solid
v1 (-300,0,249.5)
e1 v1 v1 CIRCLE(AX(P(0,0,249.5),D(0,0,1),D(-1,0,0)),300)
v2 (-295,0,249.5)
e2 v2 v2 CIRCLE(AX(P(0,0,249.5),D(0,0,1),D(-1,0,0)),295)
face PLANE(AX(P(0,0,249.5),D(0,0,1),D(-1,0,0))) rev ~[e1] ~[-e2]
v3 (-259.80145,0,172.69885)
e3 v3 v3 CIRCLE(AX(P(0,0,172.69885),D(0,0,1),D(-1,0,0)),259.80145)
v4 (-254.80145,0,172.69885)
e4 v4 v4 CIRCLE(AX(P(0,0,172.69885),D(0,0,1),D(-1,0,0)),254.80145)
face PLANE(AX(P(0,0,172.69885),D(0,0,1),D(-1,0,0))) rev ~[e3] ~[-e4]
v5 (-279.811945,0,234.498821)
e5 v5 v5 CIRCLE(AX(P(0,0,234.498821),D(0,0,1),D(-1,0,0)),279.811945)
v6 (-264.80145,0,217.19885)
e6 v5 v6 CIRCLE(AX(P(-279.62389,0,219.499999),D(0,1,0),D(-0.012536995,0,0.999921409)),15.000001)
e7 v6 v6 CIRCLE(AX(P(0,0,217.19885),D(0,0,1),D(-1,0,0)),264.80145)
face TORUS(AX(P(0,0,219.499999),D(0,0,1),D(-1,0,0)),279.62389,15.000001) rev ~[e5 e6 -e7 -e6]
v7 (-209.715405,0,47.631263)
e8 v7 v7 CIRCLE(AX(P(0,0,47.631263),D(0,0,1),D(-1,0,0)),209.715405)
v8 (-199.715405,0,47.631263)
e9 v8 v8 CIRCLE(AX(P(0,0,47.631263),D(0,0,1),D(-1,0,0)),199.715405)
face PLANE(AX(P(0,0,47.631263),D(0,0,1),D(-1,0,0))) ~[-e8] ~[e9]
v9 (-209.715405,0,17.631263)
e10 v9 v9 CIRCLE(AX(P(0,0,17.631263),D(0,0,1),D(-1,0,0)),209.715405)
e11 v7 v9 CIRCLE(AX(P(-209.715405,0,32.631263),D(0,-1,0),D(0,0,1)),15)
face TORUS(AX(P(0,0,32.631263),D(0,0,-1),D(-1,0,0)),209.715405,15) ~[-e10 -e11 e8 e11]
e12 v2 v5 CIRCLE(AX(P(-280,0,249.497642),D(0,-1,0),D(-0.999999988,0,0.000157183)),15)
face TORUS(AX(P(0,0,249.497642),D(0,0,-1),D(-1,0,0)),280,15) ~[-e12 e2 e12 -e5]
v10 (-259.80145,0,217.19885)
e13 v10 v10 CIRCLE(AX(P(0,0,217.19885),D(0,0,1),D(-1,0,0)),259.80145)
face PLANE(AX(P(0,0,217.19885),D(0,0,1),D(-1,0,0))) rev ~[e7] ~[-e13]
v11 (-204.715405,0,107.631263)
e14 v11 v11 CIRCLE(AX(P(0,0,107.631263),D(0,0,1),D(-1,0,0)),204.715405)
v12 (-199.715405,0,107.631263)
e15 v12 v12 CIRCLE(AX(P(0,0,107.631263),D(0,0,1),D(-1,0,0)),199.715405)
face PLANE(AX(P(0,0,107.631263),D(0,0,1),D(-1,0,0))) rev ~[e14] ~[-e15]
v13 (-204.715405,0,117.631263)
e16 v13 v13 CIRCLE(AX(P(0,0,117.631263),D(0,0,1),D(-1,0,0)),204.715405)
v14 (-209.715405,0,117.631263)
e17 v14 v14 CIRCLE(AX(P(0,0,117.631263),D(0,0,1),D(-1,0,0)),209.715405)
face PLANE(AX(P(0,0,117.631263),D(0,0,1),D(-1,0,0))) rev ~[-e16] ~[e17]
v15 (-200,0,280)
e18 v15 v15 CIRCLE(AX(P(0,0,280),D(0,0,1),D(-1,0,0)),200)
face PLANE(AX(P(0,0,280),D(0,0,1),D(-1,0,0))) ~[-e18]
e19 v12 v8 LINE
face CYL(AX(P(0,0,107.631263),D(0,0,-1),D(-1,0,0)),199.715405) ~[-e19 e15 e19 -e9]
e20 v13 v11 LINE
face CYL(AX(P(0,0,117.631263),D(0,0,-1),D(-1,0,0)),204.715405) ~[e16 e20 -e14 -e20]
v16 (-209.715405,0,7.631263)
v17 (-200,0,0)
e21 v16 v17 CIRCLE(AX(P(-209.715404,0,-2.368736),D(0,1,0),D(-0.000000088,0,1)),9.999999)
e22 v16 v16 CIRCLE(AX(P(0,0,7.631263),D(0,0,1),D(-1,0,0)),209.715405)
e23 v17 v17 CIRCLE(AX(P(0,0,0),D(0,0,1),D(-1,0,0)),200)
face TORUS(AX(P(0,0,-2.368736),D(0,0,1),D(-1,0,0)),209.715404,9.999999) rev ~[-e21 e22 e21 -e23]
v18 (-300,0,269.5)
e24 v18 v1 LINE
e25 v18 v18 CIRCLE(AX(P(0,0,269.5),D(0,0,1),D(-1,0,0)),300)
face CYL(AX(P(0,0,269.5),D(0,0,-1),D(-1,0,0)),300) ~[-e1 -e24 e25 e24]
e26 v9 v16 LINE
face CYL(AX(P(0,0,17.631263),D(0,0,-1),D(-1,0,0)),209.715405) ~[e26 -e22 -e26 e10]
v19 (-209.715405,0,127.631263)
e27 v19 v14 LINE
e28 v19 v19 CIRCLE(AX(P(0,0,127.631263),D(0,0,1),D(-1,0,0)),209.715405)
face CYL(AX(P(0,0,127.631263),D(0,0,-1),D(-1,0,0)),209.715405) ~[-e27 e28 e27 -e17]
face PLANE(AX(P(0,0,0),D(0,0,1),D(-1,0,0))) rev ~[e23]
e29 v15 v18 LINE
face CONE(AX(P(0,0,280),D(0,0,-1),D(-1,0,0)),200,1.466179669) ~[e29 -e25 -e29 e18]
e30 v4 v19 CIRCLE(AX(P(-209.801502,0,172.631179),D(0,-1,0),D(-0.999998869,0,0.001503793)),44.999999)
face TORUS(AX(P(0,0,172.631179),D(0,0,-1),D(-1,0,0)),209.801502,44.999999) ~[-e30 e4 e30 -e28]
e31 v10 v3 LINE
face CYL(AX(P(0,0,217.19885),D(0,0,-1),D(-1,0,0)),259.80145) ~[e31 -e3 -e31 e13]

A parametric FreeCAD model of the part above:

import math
import FreeCAD as App
import Part
import Sketcher

V = App.Vector
Q = App.Units.Quantity

doc = App.newDocument("Part")
body = doc.addObject("PartDesign::Body", "Body")

# Sketch on XZ plane
sketch1 = doc.addObject("Sketcher::SketchObject", "Sketch")
body.addObject(sketch1)
sketch1.AttachmentSupport = (doc.XZ_Plane, [""])
sketch1.MapMode = "FlatFace"
sketch1.addGeometry([
    Part.LineSegment(V(-200, 0, 0), V(0, 0, 0)),  # 0
    Part.LineSegment(V(0, 0, 0), V(0, 280, 0)),  # 1
    Part.LineSegment(V(0, 280, 0), V(-200, 280, 0)),  # 2
    Part.LineSegment(V(-200, 280, 0), V(-300, 269.5, 0)),  # 3
    Part.LineSegment(V(-300, 269.5, 0), V(-300, 249.5, 0)),  # 4
    Part.LineSegment(V(-300, 249.5, 0), V(-295, 249.5, 0)),  # 5
    Part.ArcOfCircle(Part.Circle(V(-280, 249.497642, 0), V(0, 0, 1), 15), math.radians(179.990994), math.radians(270.718336)),  # 6
    Part.ArcOfCircle(Part.Circle(V(-279.62389, 219.499999, 0), V(0, 0, 1), 15.000001), math.radians(-8.82459), math.radians(90.718336)),  # 7
    Part.LineSegment(V(-264.80145, 217.19885, 0), V(-259.80145, 217.19885, 0)),  # 8
    Part.LineSegment(V(-259.80145, 217.19885, 0), V(-259.80145, 172.69885, 0)),  # 9
    Part.LineSegment(V(-259.80145, 172.69885, 0), V(-254.80145, 172.69885, 0)),  # 10
    Part.ArcOfCircle(Part.Circle(V(-209.801502, 172.631179, 0), V(0, 0, 1), 44.999999), math.radians(179.913839), math.radians(270.109622)),  # 11
    Part.LineSegment(V(-209.715405, 127.631263, 0), V(-209.715405, 117.631263, 0)),  # 12
    Part.LineSegment(V(-209.715405, 117.631263, 0), V(-204.715405, 117.631263, 0)),  # 13
    Part.LineSegment(V(-204.715405, 117.631263, 0), V(-204.715405, 107.631263, 0)),  # 14
    Part.LineSegment(V(-204.715405, 107.631263, 0), V(-199.715405, 107.631263, 0)),  # 15
    Part.LineSegment(V(-199.715405, 107.631263, 0), V(-199.715405, 47.631263, 0)),  # 16
    Part.LineSegment(V(-199.715405, 47.631263, 0), V(-209.715405, 47.631263, 0)),  # 17
    Part.ArcOfCircle(Part.Circle(V(-209.715405, 32.631263, 0), V(0, 0, 1), 15), math.radians(90), math.radians(270)),  # 18
    Part.LineSegment(V(-209.715405, 17.631263, 0), V(-209.715405, 7.631263, 0)),  # 19
    Part.ArcOfCircle(Part.Circle(V(-209.715404, -2.368736, 0), V(0, 0, 1), 9.999999), math.radians(13.702094), math.radians(90.000005)),  # 20
], False)
sketch1.addConstraint([
    Sketcher.Constraint("Coincident", 0, 2, 1, 1),
    Sketcher.Constraint("Coincident", 1, 2, 2, 1),
    Sketcher.Constraint("Coincident", 2, 2, 3, 1),
    Sketcher.Constraint("Coincident", 3, 2, 4, 1),
    Sketcher.Constraint("Coincident", 4, 2, 5, 1),
    Sketcher.Constraint("Coincident", 5, 2, 6, 1),
    Sketcher.Constraint("Tangent", 6, 2, 7, 2),
    Sketcher.Constraint("Coincident", 7, 1, 8, 1),
    Sketcher.Constraint("Coincident", 8, 2, 9, 1),
    Sketcher.Constraint("Coincident", 9, 2, 10, 1),
    Sketcher.Constraint("Coincident", 10, 2, 11, 1),
    Sketcher.Constraint("Coincident", 11, 2, 12, 1),
    Sketcher.Constraint("Coincident", 12, 2, 13, 1),
    Sketcher.Constraint("Coincident", 13, 2, 14, 1),
    Sketcher.Constraint("Coincident", 14, 2, 15, 1),
    Sketcher.Constraint("Coincident", 15, 2, 16, 1),
    Sketcher.Constraint("Coincident", 16, 2, 17, 1),
    Sketcher.Constraint("Tangent", 17, 2, 18, 1),
    Sketcher.Constraint("Coincident", 18, 2, 19, 1),
    Sketcher.Constraint("Coincident", 19, 2, 20, 2),
    Sketcher.Constraint("Coincident", 20, 1, 0, 1),
    Sketcher.Constraint("Horizontal", 0),
    Sketcher.Constraint("Vertical", 1),
    Sketcher.Constraint("Horizontal", 2),
    Sketcher.Constraint("Vertical", 4),
    Sketcher.Constraint("Horizontal", 5),
    Sketcher.Constraint("Horizontal", 8),
    Sketcher.Constraint("Vertical", 9),
    Sketcher.Constraint("Horizontal", 10),
    Sketcher.Constraint("Vertical", 12),
    Sketcher.Constraint("Horizontal", 13),
    Sketcher.Constraint("Vertical", 14),
    Sketcher.Constraint("Horizontal", 15),
    Sketcher.Constraint("Vertical", 16),
    Sketcher.Constraint("Horizontal", 17),
    Sketcher.Constraint("Vertical", 19),
    Sketcher.Constraint("Coincident", 0, 2, -1, 1),
    Sketcher.Constraint("Equal", 6, 7),
    Sketcher.Constraint("Equal", 7, 18),
    Sketcher.Constraint("Vertical", 18, 3, 20, 3),
    Sketcher.Constraint("Vertical", 20, 3, 11, 2),
    Sketcher.Constraint("Vertical", 17, 2, 18, 2),
    Sketcher.Constraint("Vertical", 2, 2, 20, 1),
    Sketcher.Constraint("Equal", 5, 8),
    Sketcher.Constraint("Equal", 8, 10),
    Sketcher.Constraint("Equal", 10, 13),
    Sketcher.Constraint("Equal", 13, 15),
    Sketcher.Constraint("Equal", 17, 12),
    Sketcher.Constraint("Equal", 12, 14),
    Sketcher.Constraint("Equal", 14, 19),
    Sketcher.Constraint("Radius", 6, Q("15 mm")),
    Sketcher.Constraint("Radius", 11, Q("44.999999 mm")),
    Sketcher.Constraint("Radius", 20, Q("9.999999 mm")),
    Sketcher.Constraint("DistanceX", 0, 1, 0, 2, Q("200 mm")),
    Sketcher.Constraint("DistanceX", 5, 1, 5, 2, Q("5 mm")),
    Sketcher.Constraint("DistanceY", 1, 1, 1, 2, Q("280 mm")),
    Sketcher.Constraint("DistanceY", 4, 2, 4, 1, Q("20 mm")),
    Sketcher.Constraint("DistanceY", 16, 2, 16, 1, Q("60 mm")),
    Sketcher.Constraint("DistanceY", 9, 2, 9, 1, Q("44.5 mm")),
    Sketcher.Constraint("DistanceX", 6, 3, -1, 1, Q("280 mm")),
    Sketcher.Constraint("DistanceY", 7, 3, 3, 2, Q("50.000001 mm")),
    Sketcher.Constraint("DistanceY", -1, 1, 7, 3, Q("219.499999 mm")),
    Sketcher.Constraint("DistanceX", 11, 3, 20, 3, Q("0.086098 mm")),
    Sketcher.Constraint("DistanceX", 7, 3, -1, 1, Q("279.62389 mm")),
    Sketcher.Constraint("DistanceY", -1, 1, 11, 3, Q("172.631179 mm")),
])
revolution = doc.addObject("PartDesign::Revolution", "Revolution")
body.addObject(revolution)
revolution.Profile = sketch1
revolution.ReferenceAxis = (sketch1, ["V_Axis"])
revolution.Angle = 360

doc.recompute()
